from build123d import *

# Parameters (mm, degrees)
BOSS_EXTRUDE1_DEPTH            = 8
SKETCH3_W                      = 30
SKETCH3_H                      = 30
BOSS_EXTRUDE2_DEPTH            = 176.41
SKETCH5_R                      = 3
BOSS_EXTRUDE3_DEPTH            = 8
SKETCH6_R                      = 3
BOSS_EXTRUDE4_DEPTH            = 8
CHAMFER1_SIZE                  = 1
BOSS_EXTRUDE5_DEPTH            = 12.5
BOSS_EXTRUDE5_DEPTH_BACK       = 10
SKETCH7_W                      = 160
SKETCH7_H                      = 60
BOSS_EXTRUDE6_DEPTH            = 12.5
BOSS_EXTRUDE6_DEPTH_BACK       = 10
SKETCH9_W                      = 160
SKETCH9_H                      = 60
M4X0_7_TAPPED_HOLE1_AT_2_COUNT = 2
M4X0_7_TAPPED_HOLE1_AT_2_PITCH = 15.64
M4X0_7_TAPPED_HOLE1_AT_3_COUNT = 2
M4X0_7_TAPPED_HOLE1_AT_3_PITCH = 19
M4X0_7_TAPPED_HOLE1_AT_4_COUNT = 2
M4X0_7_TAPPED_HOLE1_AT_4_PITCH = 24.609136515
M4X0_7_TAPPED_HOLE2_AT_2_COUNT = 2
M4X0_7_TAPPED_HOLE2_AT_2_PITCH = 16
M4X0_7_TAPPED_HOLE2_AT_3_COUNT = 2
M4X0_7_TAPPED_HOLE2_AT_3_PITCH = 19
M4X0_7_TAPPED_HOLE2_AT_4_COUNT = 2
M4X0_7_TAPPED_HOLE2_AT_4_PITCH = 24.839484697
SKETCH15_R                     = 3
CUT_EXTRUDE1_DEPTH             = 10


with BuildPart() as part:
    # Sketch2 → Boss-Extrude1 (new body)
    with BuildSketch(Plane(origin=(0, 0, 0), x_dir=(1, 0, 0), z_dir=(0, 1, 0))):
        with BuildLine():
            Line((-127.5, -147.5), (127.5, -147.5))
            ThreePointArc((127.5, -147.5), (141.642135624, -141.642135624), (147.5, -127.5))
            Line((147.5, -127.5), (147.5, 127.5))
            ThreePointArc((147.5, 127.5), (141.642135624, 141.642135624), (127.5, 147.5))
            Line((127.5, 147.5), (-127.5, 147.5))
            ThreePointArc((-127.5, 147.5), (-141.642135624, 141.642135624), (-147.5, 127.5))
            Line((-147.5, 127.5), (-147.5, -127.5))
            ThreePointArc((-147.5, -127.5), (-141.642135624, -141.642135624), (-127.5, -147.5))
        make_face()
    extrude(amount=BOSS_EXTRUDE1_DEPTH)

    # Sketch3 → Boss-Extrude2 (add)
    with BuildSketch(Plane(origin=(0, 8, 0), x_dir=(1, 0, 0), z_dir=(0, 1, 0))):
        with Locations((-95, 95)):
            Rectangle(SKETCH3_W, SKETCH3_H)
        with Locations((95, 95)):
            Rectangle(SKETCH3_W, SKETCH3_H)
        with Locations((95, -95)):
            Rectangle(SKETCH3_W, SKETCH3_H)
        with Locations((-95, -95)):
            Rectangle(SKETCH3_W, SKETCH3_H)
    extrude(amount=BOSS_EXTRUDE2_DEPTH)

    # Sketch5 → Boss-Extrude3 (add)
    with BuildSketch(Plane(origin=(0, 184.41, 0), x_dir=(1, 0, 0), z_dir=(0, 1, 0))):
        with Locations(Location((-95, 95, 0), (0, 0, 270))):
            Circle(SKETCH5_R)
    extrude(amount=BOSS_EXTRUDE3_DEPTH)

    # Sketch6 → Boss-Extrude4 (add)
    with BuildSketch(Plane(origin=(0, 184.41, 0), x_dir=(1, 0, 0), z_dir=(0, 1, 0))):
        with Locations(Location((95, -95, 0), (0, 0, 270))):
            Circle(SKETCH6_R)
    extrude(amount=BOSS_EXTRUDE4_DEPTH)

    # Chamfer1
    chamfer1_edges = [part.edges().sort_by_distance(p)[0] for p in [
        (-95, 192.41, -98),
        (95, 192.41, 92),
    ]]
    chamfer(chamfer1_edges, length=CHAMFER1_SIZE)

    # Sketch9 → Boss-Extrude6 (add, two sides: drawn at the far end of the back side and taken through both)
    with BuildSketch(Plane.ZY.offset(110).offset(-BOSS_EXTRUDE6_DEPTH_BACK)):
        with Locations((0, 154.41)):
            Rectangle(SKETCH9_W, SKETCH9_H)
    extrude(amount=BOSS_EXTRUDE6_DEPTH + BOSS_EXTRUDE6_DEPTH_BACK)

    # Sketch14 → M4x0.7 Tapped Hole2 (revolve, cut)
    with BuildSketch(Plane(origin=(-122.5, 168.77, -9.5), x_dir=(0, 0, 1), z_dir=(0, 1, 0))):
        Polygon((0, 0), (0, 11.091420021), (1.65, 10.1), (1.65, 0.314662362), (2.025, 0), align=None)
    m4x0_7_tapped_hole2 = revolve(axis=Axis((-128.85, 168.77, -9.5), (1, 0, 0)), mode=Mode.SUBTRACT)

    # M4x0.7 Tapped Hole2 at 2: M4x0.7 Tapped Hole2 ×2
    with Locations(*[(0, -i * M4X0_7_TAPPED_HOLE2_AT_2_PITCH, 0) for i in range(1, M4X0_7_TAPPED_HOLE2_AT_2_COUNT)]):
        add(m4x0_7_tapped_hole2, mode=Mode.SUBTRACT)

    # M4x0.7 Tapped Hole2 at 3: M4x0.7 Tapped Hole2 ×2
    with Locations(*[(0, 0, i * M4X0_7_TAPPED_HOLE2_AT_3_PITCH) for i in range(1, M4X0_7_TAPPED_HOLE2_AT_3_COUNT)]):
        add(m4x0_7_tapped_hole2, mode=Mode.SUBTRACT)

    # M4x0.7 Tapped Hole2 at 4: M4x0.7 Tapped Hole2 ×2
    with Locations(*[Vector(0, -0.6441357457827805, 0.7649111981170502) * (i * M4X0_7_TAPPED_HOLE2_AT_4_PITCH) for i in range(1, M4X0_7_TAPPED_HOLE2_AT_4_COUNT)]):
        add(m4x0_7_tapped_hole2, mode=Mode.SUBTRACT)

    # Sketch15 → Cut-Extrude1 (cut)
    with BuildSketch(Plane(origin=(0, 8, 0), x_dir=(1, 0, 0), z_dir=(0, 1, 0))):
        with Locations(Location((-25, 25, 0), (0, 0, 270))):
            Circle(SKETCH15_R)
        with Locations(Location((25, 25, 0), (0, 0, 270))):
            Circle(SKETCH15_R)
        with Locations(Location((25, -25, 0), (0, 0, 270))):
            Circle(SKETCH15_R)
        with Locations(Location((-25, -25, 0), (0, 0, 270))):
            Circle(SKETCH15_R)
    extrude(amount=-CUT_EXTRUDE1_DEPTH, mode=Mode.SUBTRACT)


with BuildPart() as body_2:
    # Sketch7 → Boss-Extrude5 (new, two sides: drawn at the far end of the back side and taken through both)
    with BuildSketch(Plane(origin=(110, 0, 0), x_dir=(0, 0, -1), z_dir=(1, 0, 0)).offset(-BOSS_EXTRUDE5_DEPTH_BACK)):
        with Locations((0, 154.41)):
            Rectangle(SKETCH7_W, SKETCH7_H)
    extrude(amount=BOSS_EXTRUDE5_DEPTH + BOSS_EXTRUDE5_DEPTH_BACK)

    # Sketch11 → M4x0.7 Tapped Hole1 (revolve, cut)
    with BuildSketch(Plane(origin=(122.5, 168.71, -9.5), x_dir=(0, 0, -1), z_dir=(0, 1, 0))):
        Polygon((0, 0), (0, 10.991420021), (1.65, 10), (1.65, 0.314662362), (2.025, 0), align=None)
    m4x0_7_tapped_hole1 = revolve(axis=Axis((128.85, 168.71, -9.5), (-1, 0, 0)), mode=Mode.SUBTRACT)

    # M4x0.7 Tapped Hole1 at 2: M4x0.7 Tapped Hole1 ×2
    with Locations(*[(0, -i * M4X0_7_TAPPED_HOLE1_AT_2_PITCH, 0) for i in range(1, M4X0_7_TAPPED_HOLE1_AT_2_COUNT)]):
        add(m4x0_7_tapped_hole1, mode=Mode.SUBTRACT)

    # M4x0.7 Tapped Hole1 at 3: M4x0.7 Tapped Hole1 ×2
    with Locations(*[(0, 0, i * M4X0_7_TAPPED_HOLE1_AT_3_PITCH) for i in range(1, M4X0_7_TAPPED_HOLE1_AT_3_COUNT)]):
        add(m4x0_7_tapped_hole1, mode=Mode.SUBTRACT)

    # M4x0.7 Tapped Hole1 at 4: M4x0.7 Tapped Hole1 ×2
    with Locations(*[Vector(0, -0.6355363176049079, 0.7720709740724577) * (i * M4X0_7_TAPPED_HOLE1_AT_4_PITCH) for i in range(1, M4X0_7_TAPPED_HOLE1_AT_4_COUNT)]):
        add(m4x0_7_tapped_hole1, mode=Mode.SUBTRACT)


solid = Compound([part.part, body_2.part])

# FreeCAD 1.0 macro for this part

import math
import FreeCAD as App
import Part
import Sketcher
Q = App.Units.Quantity


def edges_at(feature, points):
    """Names of the edges that pass closest to the given points."""
    edges = feature.Shape.Edges
    near = lambda p: min(range(len(edges)), key=lambda i: edges[i].distToShape(Part.Vertex(*p))[0])
    return sorted({f"Edge{near(p) + 1}" for p in points})


def add_polygon(sketch, points):
    """Adds a closed chain of lines whose ends are joined by coincident constraints."""
    first, n = sketch.GeometryCount, len(points)
    for a, b in zip(points, points[1:] + points[:1]):
        sketch.addGeometry(Part.LineSegment(App.Vector(*a, 0), App.Vector(*b, 0)), False)
    for i in range(n):
        sketch.addConstraint(Sketcher.Constraint("Coincident", first + i, 2, first + (i + 1) % n, 1))

doc = App.newDocument("Part")
body = doc.addObject("PartDesign::Body", "Body")

# Sketch on XZ plane
sketch1 = body.newObject("Sketcher::SketchObject", "Sketch")
sketch1.AttachmentSupport = (doc.getObject("XZ_Plane"), [""])
sketch1.MapMode = "FlatFace"
sketch1.addGeometry([
    Part.LineSegment(App.Vector(-128, 148, 0), App.Vector(128, 148, 0)),  # 0
    Part.ArcOfCircle(Part.Circle(App.Vector(128, 128, 0), App.Vector(0, 0, 1), 20), math.radians(0), math.radians(90)),  # 1
    Part.LineSegment(App.Vector(148, 128, 0), App.Vector(148, -128, 0)),  # 2
    Part.ArcOfCircle(Part.Circle(App.Vector(128, -128, 0), App.Vector(0, 0, 1), 20), math.radians(-90), math.radians(0)),  # 3
    Part.LineSegment(App.Vector(128, -148, 0), App.Vector(-128, -148, 0)),  # 4
    Part.ArcOfCircle(Part.Circle(App.Vector(-128, -128, 0), App.Vector(0, 0, 1), 20), math.radians(180), math.radians(270)),  # 5
    Part.LineSegment(App.Vector(-148, -128, 0), App.Vector(-148, 128, 0)),  # 6
    Part.ArcOfCircle(Part.Circle(App.Vector(-128, 128, 0), App.Vector(0, 0, 1), 20), math.radians(90), math.radians(180)),  # 7
], False)
sketch1.addConstraint([
    Sketcher.Constraint("Tangent", 0, 2, 1, 2),
    Sketcher.Constraint("Tangent", 1, 1, 2, 1),
    Sketcher.Constraint("Tangent", 2, 2, 3, 2),
    Sketcher.Constraint("Tangent", 3, 1, 4, 1),
    Sketcher.Constraint("Tangent", 4, 2, 5, 2),
    Sketcher.Constraint("Tangent", 5, 1, 6, 1),
    Sketcher.Constraint("Tangent", 6, 2, 7, 2),
    Sketcher.Constraint("Tangent", 7, 1, 0, 1),
    Sketcher.Constraint("Horizontal", 0),
    Sketcher.Constraint("Vertical", 2),
    Sketcher.Constraint("Horizontal", 4),
    Sketcher.Constraint("Vertical", 6),
    Sketcher.Constraint("Equal", 1, 3),
    Sketcher.Constraint("Equal", 3, 5),
    Sketcher.Constraint("Equal", 5, 7),
    Sketcher.Constraint("Symmetric", 1, 3, 5, 3, -1, 1),
    Sketcher.Constraint("Equal", 4, 2),
    Sketcher.Constraint("Radius", 1, 20.0),
    Sketcher.Constraint("DistanceX", 0, 1, 0, 2, 255.0),
])
pad1 = body.newObject("PartDesign::Pad", "Pad")
pad1.Profile = sketch1
pad1.Length = 8
pad1.Reversed = True

# Sketch on XZ plane
sketch2 = body.newObject("Sketcher::SketchObject", "Sketch001")
sketch2.AttachmentSupport = (doc.getObject("XZ_Plane"), [""])
sketch2.MapMode = "FlatFace"
sketch2.AttachmentOffset = App.Placement(App.Vector(0, 0, -8), App.Rotation())
add_polygon(sketch2, [(-110, -110), (-110, -80), (-80, -80), (-80, -110)])  # lines 0-3
add_polygon(sketch2, [(80, -110), (80, -80), (110, -80), (110, -110)])  # lines 4-7
add_polygon(sketch2, [(80, 80), (80, 110), (110, 110), (110, 80)])  # lines 8-11
add_polygon(sketch2, [(-110, 80), (-110, 110), (-80, 110), (-80, 80)])  # lines 12-15
sketch2.addConstraint([
    Sketcher.Constraint("Vertical", 0),
    Sketcher.Constraint("Horizontal", 1),
    Sketcher.Constraint("Vertical", 2),
    Sketcher.Constraint("Horizontal", 3),
    Sketcher.Constraint("Vertical", 4),
    Sketcher.Constraint("Horizontal", 5),
    Sketcher.Constraint("Vertical", 6),
    Sketcher.Constraint("Horizontal", 7),
    Sketcher.Constraint("Vertical", 8),
    Sketcher.Constraint("Horizontal", 9),
    Sketcher.Constraint("Vertical", 10),
    Sketcher.Constraint("Horizontal", 11),
    Sketcher.Constraint("Vertical", 12),
    Sketcher.Constraint("Horizontal", 13),
    Sketcher.Constraint("Vertical", 14),
    Sketcher.Constraint("Horizontal", 15),
    Sketcher.Constraint("Symmetric", 2, 2, 8, 2, -1, 1),
    Sketcher.Constraint("Symmetric", 0, 2, 10, 2, -1, 1),
    Sketcher.Constraint("Symmetric", 6, 2, 12, 2, -1, 1),
    Sketcher.Constraint("Symmetric", 4, 2, 14, 2, -1, 1),
    Sketcher.Constraint("Symmetric", 1, 2, 4, 2, -2),
    Sketcher.Constraint("Symmetric", 3, 2, 6, 2, -2),
    Sketcher.Constraint("Equal", 15, 0),
    Sketcher.Constraint("DistanceX", 1, 1, 1, 2, 30.0),
    Sketcher.Constraint("DistanceX", 0, 2, -1, 1, 110.0),
    Sketcher.Constraint("DistanceY", 0, 2, -1, 1, 80.0),
])
pad2 = body.newObject("PartDesign::Pad", "Pad001")
pad2.Profile = sketch2
pad2.Length = 176.41
pad2.Reversed = True

# Sketch on XZ plane
sketch3 = body.newObject("Sketcher::SketchObject", "Sketch002")
sketch3.AttachmentSupport = (doc.getObject("XZ_Plane"), [""])
sketch3.MapMode = "FlatFace"
sketch3.AttachmentOffset = App.Placement(App.Vector(0, 0, -184.41), App.Rotation())
sketch3.addGeometry(Part.Circle(App.Vector(-95, -95, 0), App.Vector(0, 0, 1), 3), False)
sketch3.addConstraint([
    Sketcher.Constraint("Diameter", 0, 6.0),
    Sketcher.Constraint("DistanceX", 0, 3, -1, 1, 95.0),
    Sketcher.Constraint("DistanceY", 0, 3, -1, 1, 95.0),
])
pad3 = body.newObject("PartDesign::Pad", "Pad002")
pad3.Profile = sketch3
pad3.Length = 8
pad3.Reversed = True

# Sketch on XZ plane
sketch4 = body.newObject("Sketcher::SketchObject", "Sketch003")
sketch4.AttachmentSupport = (doc.getObject("XZ_Plane"), [""])
sketch4.MapMode = "FlatFace"
sketch4.AttachmentOffset = App.Placement(App.Vector(0, 0, -184.41), App.Rotation())
sketch4.addGeometry(Part.Circle(App.Vector(95, 95, 0), App.Vector(0, 0, 1), 3), False)
sketch4.addConstraint([
    Sketcher.Constraint("Diameter", 0, 6.0),
    Sketcher.Constraint("DistanceX", -1, 1, 0, 3, 95.0),
    Sketcher.Constraint("DistanceY", -1, 1, 0, 3, 95.0),
])
pad4 = body.newObject("PartDesign::Pad", "Pad003")
pad4.Profile = sketch4
pad4.Length = 8
pad4.Reversed = True
doc.recompute()

chamfer = body.newObject("PartDesign::Chamfer", "Chamfer")
chamfer.Base = (pad4, edges_at(pad4, [(-95, 192.41, -98), (95, 192.41, 92)]))
chamfer.Size = 1

# Sketch on YZ plane
sketch5 = body.newObject("Sketcher::SketchObject", "Sketch004")
sketch5.AttachmentSupport = (doc.getObject("YZ_Plane"), [""])
sketch5.MapMode = "FlatFace"
sketch5.AttachmentOffset = App.Placement(App.Vector(0, 0, -110), App.Rotation())
add_polygon(sketch5, [(184, -80), (124, -80), (124, 80), (184, 80)])  # lines 0-3
sketch5.addConstraint([
    Sketcher.Constraint("Horizontal", 0),
    Sketcher.Constraint("Vertical", 1),
    Sketcher.Constraint("Horizontal", 2),
    Sketcher.Constraint("Vertical", 3),
    Sketcher.Constraint("DistanceX", 0, 2, 0, 1, 60.0),
    Sketcher.Constraint("DistanceY", 1, 1, 1, 2, 160.0),
    Sketcher.Constraint("DistanceY", 0, 2, -1, 1, 80.0),
    Sketcher.Constraint("DistanceX", -1, 1, 0, 2, 124.41),
])
pad5 = body.newObject("PartDesign::Pad", "Pad004")
pad5.Profile = sketch5
pad5.Type = "TwoLengths"
pad5.Length = 12.5
pad5.Length2 = 10
pad5.Reversed = True

# Sketch on XZ plane
sketch6 = body.newObject("Sketcher::SketchObject", "Sketch005")
sketch6.AttachmentSupport = (doc.getObject("XZ_Plane"), [""])
sketch6.MapMode = "FlatFace"
sketch6.AttachmentOffset = App.Placement(App.Vector(0, 0, -168.77), App.Rotation())
add_polygon(sketch6, [(-111.41, -9.5), (-122.5, -9.5), (-122.5, -7.47), (-122.19, -7.85), (-112.4, -7.85)])  # lines 0-4
sketch6.addGeometry(Part.LineSegment(App.Vector(-122.5, -9.5, 0), App.Vector(-111.41, -9.5, 0)), True)  # axis
sketch6.addConstraint([
    Sketcher.Constraint("Horizontal", 0),
    Sketcher.Constraint("Vertical", 1),
    Sketcher.Constraint("Horizontal", 3),
    Sketcher.Constraint("Horizontal", 5),
    Sketcher.Constraint("Coincident", 5, 1, 0, 2),
    Sketcher.Constraint("Equal", 0, 5),
    Sketcher.Constraint("Angle", 2, Q("-50 deg")),
    Sketcher.Constraint("Angle", 4, Q("-59 deg")),
    Sketcher.Constraint("DistanceX", 0, 2, -1, 1, 122.5),
    Sketcher.Constraint("DistanceY", 0, 2, -1, 1, 9.5),
    Sketcher.Constraint("DistanceX", 3, 2, -1, 1, 112.4),
    Sketcher.Constraint("DistanceY", 1, 1, 1, 2, 2.025),
    Sketcher.Constraint("DistanceY", 2, 2, -1, 1, 7.85),
])
groove = body.newObject("PartDesign::Groove", "Groove")
groove.Profile = sketch6
groove.ReferenceAxis = (sketch6, ["Axis0"])
groove.Angle = 360
doc.recompute()

linearpattern = body.newObject("PartDesign::LinearPattern", "LinearPattern")
linearpattern.Originals = [groove]
linearpattern.Direction = (doc.getObject("Y_Axis"), [""])
linearpattern.Mode = "offset"
linearpattern.Offset = 16
linearpattern.Occurrences = 2
linearpattern.Reversed = True
body.Tip = linearpattern
doc.recompute()

linearpattern2 = body.newObject("PartDesign::LinearPattern", "LinearPattern001")
linearpattern2.Originals = [groove]
linearpattern2.Direction = (doc.getObject("Z_Axis"), [""])
linearpattern2.Mode = "offset"
linearpattern2.Offset = 19
linearpattern2.Occurrences = 2
body.Tip = linearpattern2
doc.recompute()

datumline = body.newObject("PartDesign::Line", "DatumLine")
datumline.Placement = App.Placement(App.Vector(0, 0, 0), App.Rotation(App.Vector(0, 0, 1), App.Vector(0, -0.644135746, 0.764911198)))
linearpattern3 = body.newObject("PartDesign::LinearPattern", "LinearPattern002")
linearpattern3.Originals = [groove]
linearpattern3.Direction = (datumline, [""])
linearpattern3.Mode = "offset"
linearpattern3.Offset = 24.839485
linearpattern3.Occurrences = 2
body.Tip = linearpattern3

# Sketch on XZ plane
sketch7 = body.newObject("Sketcher::SketchObject", "Sketch006")
sketch7.AttachmentSupport = (doc.getObject("XZ_Plane"), [""])
sketch7.MapMode = "FlatFace"
sketch7.AttachmentOffset = App.Placement(App.Vector(0, 0, -8), App.Rotation())
sketch7.addGeometry([
    Part.Circle(App.Vector(-25, -25, 0), App.Vector(0, 0, 1), 3),
    Part.Circle(App.Vector(25, -25, 0), App.Vector(0, 0, 1), 3),
    Part.Circle(App.Vector(25, 25, 0), App.Vector(0, 0, 1), 3),
    Part.Circle(App.Vector(-25, 25, 0), App.Vector(0, 0, 1), 3),
], False)
sketch7.addConstraint([
    Sketcher.Constraint("Equal", 0, 1),
    Sketcher.Constraint("Equal", 1, 2),
    Sketcher.Constraint("Equal", 2, 3),
    Sketcher.Constraint("Symmetric", 0, 3, 2, 3, -1, 1),
    Sketcher.Constraint("Symmetric", 1, 3, 3, 3, -1, 1),
    Sketcher.Constraint("Symmetric", 0, 3, 1, 3, -2),
    Sketcher.Constraint("Diameter", 0, 6.0),
    Sketcher.Constraint("DistanceX", 0, 3, -1, 1, 25.0),
    Sketcher.Constraint("DistanceY", 0, 3, -1, 1, 25.0),
])
pocket1 = body.newObject("PartDesign::Pocket", "Pocket")
pocket1.Profile = sketch7
pocket1.Length = 10
pocket1.Reversed = True
body2 = doc.addObject("PartDesign::Body", "Body001")

# Sketch on YZ plane
sketch8 = body2.newObject("Sketcher::SketchObject", "Sketch007")
sketch8.AttachmentSupport = (doc.getObject("YZ_Plane001"), [""])
sketch8.MapMode = "FlatFace"
sketch8.AttachmentOffset = App.Placement(App.Vector(0, 0, 110), App.Rotation())
add_polygon(sketch8, [(184, 80), (124, 80), (124, -80), (184, -80)])  # lines 0-3
sketch8.addConstraint([
    Sketcher.Constraint("Horizontal", 0),
    Sketcher.Constraint("Vertical", 1),
    Sketcher.Constraint("Horizontal", 2),
    Sketcher.Constraint("Vertical", 3),
    Sketcher.Constraint("DistanceX", 0, 2, 0, 1, 60.0),
    Sketcher.Constraint("DistanceY", 1, 2, 1, 1, 160.0),
    Sketcher.Constraint("DistanceY", -1, 1, 0, 2, 80.0),
    Sketcher.Constraint("DistanceX", -1, 1, 0, 2, 124.41),
])
pad6 = body2.newObject("PartDesign::Pad", "Pad005")
pad6.Profile = sketch8
pad6.Type = "TwoLengths"
pad6.Length = 12.5
pad6.Length2 = 10

# Sketch on XZ plane
sketch9 = body2.newObject("Sketcher::SketchObject", "Sketch008")
sketch9.AttachmentSupport = (doc.getObject("XZ_Plane001"), [""])
sketch9.MapMode = "FlatFace"
sketch9.AttachmentOffset = App.Placement(App.Vector(0, 0, -168.71), App.Rotation())
add_polygon(sketch9, [(111.51, -9.5), (122.5, -9.5), (122.5, -11.53), (122.19, -11.15), (112.5, -11.15)])  # lines 0-4
sketch9.addGeometry(Part.LineSegment(App.Vector(122.5, -9.5, 0), App.Vector(111.51, -9.5, 0)), True)  # axis
sketch9.addConstraint([
    Sketcher.Constraint("Horizontal", 0),
    Sketcher.Constraint("Vertical", 1),
    Sketcher.Constraint("Horizontal", 3),
    Sketcher.Constraint("Horizontal", 5),
    Sketcher.Constraint("Coincident", 5, 1, 0, 2),
    Sketcher.Constraint("Equal", 0, 5),
    Sketcher.Constraint("Angle", 2, Q("130 deg")),
    Sketcher.Constraint("Angle", 4, Q("121 deg")),
    Sketcher.Constraint("DistanceX", 3, 2, 1, 2, 10.0),
    Sketcher.Constraint("DistanceX", -1, 1, 0, 2, 122.5),
    Sketcher.Constraint("DistanceY", 0, 2, -1, 1, 9.5),
    Sketcher.Constraint("DistanceY", 1, 2, 1, 1, 2.025),
    Sketcher.Constraint("DistanceY", 2, 2, -1, 1, 11.15),
])
groove2 = body2.newObject("PartDesign::Groove", "Groove001")
groove2.Profile = sketch9
groove2.ReferenceAxis = (sketch9, ["Axis0"])
groove2.Angle = 360
doc.recompute()

linearpattern4 = body2.newObject("PartDesign::LinearPattern", "LinearPattern003")
linearpattern4.Originals = [groove2]
linearpattern4.Direction = (doc.getObject("Y_Axis001"), [""])
linearpattern4.Mode = "offset"
linearpattern4.Offset = 15.64
linearpattern4.Occurrences = 2
linearpattern4.Reversed = True
body2.Tip = linearpattern4
doc.recompute()

linearpattern5 = body2.newObject("PartDesign::LinearPattern", "LinearPattern004")
linearpattern5.Originals = [groove2]
linearpattern5.Direction = (doc.getObject("Z_Axis001"), [""])
linearpattern5.Mode = "offset"
linearpattern5.Offset = 19
linearpattern5.Occurrences = 2
body2.Tip = linearpattern5
doc.recompute()

datumline2 = body2.newObject("PartDesign::Line", "DatumLine001")
datumline2.Placement = App.Placement(App.Vector(0, 0, 0), App.Rotation(App.Vector(0, 0, 1), App.Vector(0, -0.635536318, 0.772070974)))
linearpattern6 = body2.newObject("PartDesign::LinearPattern", "LinearPattern005")
linearpattern6.Originals = [groove2]
linearpattern6.Direction = (datumline2, [""])
linearpattern6.Mode = "offset"
linearpattern6.Offset = 24.609137
linearpattern6.Occurrences = 2
body2.Tip = linearpattern6

doc.recompute()
